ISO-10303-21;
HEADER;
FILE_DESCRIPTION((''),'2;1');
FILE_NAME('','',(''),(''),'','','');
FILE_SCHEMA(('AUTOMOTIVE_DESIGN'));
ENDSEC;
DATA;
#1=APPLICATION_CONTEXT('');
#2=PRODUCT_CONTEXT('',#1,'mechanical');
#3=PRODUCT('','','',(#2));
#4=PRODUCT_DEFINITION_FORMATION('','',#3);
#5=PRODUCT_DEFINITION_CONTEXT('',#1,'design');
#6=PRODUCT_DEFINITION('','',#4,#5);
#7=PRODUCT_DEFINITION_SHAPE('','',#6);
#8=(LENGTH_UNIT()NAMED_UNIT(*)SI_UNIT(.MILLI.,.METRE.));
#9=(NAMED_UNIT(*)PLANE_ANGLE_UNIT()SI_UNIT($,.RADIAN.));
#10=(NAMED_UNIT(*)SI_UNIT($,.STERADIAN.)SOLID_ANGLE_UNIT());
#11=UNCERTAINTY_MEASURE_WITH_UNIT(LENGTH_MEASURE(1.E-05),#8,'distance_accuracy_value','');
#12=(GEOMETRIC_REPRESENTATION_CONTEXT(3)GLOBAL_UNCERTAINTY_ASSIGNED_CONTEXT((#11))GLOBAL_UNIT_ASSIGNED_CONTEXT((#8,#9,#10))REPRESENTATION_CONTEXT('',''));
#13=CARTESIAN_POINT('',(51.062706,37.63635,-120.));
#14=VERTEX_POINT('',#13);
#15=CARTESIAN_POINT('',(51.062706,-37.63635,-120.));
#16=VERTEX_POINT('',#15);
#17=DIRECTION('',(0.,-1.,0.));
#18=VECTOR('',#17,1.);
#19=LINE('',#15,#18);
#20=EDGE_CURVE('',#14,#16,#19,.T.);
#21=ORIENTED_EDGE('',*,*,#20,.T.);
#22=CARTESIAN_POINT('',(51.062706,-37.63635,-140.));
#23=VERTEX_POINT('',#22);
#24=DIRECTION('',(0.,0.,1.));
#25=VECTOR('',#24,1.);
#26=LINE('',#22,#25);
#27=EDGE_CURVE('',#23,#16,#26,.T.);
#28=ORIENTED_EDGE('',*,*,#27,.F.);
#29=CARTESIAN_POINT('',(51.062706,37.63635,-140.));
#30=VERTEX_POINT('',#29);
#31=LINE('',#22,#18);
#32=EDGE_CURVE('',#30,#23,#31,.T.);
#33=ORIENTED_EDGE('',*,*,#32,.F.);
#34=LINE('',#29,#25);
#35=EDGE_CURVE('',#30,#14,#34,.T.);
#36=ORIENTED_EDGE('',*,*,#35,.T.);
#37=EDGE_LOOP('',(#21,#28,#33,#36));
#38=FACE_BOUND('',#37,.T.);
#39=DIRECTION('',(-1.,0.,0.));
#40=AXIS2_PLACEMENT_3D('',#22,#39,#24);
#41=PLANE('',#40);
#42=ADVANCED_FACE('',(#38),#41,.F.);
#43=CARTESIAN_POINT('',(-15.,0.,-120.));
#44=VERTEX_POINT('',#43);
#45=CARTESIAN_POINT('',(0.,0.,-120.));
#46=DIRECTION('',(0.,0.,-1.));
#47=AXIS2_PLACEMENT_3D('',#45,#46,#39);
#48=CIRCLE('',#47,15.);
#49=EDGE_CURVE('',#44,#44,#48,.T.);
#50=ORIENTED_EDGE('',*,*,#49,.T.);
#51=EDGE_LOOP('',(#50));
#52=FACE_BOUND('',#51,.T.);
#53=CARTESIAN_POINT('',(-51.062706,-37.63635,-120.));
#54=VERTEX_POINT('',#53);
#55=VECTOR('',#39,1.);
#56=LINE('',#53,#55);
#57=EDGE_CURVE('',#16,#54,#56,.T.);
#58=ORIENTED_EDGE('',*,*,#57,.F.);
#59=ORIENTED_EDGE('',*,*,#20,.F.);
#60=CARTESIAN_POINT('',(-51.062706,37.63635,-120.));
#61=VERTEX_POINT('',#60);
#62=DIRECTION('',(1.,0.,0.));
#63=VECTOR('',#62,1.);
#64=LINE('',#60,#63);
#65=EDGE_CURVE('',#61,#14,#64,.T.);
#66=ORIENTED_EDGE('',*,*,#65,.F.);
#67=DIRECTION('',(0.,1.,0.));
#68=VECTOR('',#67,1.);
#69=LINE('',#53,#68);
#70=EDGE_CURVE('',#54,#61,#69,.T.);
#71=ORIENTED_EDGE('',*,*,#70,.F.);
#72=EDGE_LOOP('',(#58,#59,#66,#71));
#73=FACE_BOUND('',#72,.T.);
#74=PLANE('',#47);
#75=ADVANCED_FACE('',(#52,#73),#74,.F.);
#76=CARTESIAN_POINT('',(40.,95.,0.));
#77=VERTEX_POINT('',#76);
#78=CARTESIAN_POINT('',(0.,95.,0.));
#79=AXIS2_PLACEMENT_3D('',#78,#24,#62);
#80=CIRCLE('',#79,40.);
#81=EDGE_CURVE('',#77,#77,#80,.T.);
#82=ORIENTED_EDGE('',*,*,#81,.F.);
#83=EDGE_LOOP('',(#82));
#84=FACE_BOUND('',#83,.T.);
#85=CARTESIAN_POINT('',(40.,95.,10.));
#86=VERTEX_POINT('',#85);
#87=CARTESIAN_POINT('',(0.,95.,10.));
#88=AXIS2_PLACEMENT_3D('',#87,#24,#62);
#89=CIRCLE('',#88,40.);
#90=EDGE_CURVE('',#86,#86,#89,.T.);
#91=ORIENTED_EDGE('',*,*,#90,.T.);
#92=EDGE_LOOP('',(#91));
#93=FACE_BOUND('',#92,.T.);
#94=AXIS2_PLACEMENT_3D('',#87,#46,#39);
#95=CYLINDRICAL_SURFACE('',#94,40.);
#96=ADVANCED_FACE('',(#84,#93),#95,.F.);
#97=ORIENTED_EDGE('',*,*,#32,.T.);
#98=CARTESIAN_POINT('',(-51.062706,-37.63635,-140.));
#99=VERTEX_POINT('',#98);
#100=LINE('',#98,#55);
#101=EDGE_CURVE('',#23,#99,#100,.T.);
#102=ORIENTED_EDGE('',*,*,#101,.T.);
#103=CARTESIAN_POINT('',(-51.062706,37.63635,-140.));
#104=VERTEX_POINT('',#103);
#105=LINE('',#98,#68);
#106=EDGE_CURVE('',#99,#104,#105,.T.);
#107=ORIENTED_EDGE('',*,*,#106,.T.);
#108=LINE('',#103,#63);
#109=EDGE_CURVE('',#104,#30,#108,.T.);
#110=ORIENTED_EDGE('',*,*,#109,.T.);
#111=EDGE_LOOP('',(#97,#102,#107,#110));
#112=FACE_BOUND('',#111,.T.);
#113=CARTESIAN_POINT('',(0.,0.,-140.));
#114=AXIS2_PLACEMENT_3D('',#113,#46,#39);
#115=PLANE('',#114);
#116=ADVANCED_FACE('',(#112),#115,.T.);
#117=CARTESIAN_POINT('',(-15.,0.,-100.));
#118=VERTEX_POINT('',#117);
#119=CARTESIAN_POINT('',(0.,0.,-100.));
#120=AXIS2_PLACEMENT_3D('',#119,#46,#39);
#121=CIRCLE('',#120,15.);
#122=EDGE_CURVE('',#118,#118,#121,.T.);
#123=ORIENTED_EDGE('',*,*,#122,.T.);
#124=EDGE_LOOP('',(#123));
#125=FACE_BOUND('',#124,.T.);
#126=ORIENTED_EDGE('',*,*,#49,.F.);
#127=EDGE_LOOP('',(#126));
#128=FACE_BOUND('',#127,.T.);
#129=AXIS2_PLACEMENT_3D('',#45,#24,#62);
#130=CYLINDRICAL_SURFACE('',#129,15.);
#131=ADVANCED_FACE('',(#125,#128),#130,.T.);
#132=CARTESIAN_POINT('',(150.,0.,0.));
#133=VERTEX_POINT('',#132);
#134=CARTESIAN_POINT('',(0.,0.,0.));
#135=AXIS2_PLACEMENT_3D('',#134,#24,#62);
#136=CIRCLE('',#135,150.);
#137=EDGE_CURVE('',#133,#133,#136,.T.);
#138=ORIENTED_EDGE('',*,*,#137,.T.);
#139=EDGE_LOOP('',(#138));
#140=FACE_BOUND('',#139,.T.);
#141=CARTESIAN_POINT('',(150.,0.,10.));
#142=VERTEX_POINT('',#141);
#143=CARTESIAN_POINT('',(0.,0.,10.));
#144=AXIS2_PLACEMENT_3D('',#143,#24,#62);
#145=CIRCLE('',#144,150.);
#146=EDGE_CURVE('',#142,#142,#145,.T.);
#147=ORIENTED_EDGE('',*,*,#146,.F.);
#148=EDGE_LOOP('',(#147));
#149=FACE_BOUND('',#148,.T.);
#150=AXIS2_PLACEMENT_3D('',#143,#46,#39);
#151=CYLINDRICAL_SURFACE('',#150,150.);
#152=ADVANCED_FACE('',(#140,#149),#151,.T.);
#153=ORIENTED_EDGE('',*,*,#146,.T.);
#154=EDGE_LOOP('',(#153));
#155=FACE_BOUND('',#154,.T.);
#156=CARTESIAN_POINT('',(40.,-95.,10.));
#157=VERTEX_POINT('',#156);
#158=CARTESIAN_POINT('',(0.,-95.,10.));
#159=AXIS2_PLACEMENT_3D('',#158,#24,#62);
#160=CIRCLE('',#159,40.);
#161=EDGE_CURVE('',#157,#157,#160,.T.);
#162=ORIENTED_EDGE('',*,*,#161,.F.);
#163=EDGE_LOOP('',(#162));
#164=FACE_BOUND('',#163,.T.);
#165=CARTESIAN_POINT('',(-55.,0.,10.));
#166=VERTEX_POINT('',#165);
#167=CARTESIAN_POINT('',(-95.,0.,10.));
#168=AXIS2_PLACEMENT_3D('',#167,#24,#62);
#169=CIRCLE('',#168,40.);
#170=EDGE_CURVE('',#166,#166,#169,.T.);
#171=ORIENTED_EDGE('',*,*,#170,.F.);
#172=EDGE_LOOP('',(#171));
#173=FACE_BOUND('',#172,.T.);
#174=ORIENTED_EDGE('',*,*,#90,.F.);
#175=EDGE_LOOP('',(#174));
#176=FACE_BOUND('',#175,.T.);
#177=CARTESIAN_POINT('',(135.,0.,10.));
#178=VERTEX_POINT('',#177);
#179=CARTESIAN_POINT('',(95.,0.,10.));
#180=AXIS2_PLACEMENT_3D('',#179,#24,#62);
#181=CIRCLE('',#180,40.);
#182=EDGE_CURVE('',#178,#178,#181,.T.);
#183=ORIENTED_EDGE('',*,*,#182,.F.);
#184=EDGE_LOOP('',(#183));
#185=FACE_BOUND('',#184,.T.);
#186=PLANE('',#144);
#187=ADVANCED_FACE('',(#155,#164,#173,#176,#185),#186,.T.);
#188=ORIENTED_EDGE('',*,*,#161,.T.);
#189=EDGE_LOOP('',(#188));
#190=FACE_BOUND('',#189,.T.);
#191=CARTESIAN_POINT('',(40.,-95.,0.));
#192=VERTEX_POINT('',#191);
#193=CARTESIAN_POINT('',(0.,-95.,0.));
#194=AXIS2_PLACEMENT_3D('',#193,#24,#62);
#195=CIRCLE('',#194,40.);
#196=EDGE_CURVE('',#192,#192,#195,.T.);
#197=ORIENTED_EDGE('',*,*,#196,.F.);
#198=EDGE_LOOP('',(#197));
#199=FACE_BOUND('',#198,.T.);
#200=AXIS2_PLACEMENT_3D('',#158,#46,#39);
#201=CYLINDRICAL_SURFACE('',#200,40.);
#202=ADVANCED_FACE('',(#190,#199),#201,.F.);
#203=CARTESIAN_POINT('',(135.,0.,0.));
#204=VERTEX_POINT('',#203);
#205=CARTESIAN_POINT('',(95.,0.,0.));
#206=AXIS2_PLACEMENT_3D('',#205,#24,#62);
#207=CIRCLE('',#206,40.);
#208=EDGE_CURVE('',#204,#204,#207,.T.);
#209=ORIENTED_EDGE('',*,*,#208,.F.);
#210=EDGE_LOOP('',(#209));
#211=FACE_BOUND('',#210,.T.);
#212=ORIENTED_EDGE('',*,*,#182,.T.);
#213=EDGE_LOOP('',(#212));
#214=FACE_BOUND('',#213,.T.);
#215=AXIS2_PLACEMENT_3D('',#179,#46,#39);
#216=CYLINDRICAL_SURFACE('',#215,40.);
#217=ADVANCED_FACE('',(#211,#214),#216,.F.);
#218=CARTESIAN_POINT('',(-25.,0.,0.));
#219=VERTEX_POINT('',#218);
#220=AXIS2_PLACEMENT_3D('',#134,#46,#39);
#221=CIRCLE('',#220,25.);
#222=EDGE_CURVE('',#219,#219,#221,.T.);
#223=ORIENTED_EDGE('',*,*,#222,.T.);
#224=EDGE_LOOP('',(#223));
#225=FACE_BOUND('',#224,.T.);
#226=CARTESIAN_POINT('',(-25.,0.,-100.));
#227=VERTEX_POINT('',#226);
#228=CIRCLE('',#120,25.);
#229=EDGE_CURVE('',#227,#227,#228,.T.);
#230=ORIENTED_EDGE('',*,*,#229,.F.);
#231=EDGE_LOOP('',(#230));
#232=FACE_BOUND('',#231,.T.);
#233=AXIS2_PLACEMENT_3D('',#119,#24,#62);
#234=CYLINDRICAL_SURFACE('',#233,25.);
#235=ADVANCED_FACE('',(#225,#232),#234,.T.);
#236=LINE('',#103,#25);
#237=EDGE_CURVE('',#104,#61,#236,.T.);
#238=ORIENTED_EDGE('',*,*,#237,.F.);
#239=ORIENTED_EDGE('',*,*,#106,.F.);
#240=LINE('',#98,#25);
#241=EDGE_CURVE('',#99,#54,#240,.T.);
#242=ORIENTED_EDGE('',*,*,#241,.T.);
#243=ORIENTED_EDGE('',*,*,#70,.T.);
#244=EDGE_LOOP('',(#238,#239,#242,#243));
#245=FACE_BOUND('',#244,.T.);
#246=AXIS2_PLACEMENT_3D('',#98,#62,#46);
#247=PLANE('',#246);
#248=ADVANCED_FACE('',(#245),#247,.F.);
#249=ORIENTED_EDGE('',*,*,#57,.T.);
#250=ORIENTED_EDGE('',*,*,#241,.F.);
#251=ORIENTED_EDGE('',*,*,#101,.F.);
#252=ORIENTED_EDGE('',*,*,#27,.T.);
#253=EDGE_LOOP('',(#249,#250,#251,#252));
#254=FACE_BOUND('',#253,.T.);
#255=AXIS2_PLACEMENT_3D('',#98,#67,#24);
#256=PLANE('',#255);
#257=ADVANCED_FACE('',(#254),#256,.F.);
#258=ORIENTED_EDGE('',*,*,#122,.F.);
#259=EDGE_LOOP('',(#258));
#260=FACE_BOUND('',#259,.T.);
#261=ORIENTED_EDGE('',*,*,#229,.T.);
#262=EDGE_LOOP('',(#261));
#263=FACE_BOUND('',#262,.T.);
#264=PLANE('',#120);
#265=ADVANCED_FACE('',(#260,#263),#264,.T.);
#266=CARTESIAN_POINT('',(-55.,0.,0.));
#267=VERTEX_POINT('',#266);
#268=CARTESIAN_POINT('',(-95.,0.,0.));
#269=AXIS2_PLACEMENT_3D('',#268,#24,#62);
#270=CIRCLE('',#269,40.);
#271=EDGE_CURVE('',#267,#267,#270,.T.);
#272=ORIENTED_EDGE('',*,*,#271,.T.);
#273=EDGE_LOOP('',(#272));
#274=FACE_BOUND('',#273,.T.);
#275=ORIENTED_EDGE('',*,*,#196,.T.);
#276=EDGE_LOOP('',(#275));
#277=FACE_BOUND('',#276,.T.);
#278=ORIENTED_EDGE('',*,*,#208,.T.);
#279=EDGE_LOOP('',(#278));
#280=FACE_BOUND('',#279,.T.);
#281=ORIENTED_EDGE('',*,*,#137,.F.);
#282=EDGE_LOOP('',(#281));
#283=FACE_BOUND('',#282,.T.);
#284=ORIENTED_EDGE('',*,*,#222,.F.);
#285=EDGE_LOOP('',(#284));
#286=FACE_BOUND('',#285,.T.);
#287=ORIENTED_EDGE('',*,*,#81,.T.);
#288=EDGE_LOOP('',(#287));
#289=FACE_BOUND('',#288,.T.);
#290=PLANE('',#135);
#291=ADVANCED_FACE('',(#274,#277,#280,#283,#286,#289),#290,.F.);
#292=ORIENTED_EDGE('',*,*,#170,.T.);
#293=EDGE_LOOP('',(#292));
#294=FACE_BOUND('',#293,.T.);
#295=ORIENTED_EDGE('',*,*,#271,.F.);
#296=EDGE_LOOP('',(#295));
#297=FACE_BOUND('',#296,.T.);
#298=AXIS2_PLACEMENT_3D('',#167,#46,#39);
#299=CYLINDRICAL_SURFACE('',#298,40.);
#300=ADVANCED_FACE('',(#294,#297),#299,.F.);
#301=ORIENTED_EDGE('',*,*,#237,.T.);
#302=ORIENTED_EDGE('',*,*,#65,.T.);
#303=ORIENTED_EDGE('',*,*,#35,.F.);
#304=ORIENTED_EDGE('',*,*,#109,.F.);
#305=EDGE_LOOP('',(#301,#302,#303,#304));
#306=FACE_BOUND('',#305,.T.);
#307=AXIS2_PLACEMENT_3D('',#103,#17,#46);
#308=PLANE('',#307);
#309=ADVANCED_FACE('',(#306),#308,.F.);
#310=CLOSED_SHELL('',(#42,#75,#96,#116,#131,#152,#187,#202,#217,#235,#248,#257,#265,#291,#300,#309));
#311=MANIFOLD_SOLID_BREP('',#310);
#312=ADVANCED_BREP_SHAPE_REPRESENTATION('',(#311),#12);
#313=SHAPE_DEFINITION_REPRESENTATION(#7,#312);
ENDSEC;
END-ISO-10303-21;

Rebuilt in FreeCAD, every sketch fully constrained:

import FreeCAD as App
import Part
import Sketcher
Q = App.Units.Quantity


def add_polygon(sketch, points):
    """Adds a closed chain of lines whose ends are joined by coincident constraints."""
    first, n = sketch.GeometryCount, len(points)
    for a, b in zip(points, points[1:] + points[:1]):
        sketch.addGeometry(Part.LineSegment(App.Vector(*a, 0), App.Vector(*b, 0)), False)
    for i in range(n):
        sketch.addConstraint(Sketcher.Constraint("Coincident", first + i, 2, first + (i + 1) % n, 1))

doc = App.newDocument("Part")
params = doc.addObject("Spreadsheet::Sheet", "Params")
for row, (alias, value) in enumerate([
    ("sketch1_diameter", "300 mm"),
    ("sketch1_diameter2", "80 mm"),
    ("pad1_length", "10 mm"),
    ("sketch2_diameter", "50 mm"),
    ("pad2_length", "100 mm"),
    ("sketch3_diameter", "30 mm"),
    ("pad3_length", "20 mm"),
    ("pad4_length", "20 mm"),
], start=1):
    params.set(f"A{row}", alias)
    params.set(f"B{row}", "=" + value)
    params.setAlias(f"B{row}", alias)

body = doc.addObject("PartDesign::Body", "Body")

# Sketch on XY plane
sketch1 = body.newObject("Sketcher::SketchObject", "Sketch")
sketch1.AttachmentSupport = (doc.getObject("XY_Plane"), [""])
sketch1.MapMode = "FlatFace"
sketch1.addGeometry([
    Part.Circle(App.Vector(0, 0, 0), App.Vector(0, 0, 1), 150),  # 0
    Part.Circle(App.Vector(0, -95, 0), App.Vector(0, 0, 1), 40),  # 1
    Part.Circle(App.Vector(-95, 0, 0), App.Vector(0, 0, 1), 40),  # 2
    Part.Circle(App.Vector(95, 0, 0), App.Vector(0, 0, 1), 40),  # 3
    Part.Circle(App.Vector(0, 95, 0), App.Vector(0, 0, 1), 40),  # 4
], False)
sketch1.addConstraint([
    Sketcher.Constraint("Coincident", 0, 3, -1, 1),
    Sketcher.Constraint("Equal", 1, 2),
    Sketcher.Constraint("Equal", 2, 3),
    Sketcher.Constraint("Equal", 3, 4),
    Sketcher.Constraint("Symmetric", 2, 3, 3, 3, -1, 1),
    Sketcher.Constraint("Symmetric", 1, 3, 4, 3, -1, 1),
    Sketcher.Constraint("PointOnObject", 1, 3, -2),
    Sketcher.Constraint("PointOnObject", 2, 3, -1),
    Sketcher.Constraint("Diameter", 0, Q("300 mm")),
    Sketcher.Constraint("Diameter", 1, Q("80 mm")),
    Sketcher.Constraint("DistanceY", 1, 3, -1, 1, Q("95 mm")),
    Sketcher.Constraint("DistanceX", 2, 3, -1, 1, Q("95 mm")),
])
sketch1.setExpression("Constraints[8]", "Params.sketch1_diameter")
sketch1.setExpression("Constraints[9]", "Params.sketch1_diameter2")
pad1 = body.newObject("PartDesign::Pad", "Pad")
pad1.Profile = sketch1
pad1.setExpression("Length", "Params.pad1_length")

# Sketch on XY plane
sketch2 = body.newObject("Sketcher::SketchObject", "Sketch001")
sketch2.AttachmentSupport = (doc.getObject("XY_Plane"), [""])
sketch2.MapMode = "FlatFace"
sketch2.addGeometry(Part.Circle(App.Vector(0, 0, 0), App.Vector(0, 0, 1), 25), False)
sketch2.addConstraint([
    Sketcher.Constraint("Coincident", 0, 3, -1, 1),
    Sketcher.Constraint("Diameter", 0, Q("50 mm")),
])
sketch2.setExpression("Constraints[1]", "Params.sketch2_diameter")
pad2 = body.newObject("PartDesign::Pad", "Pad001")
pad2.Profile = sketch2
pad2.setExpression("Length", "Params.pad2_length")
pad2.Reversed = True

# Sketch on XY plane
sketch3 = body.newObject("Sketcher::SketchObject", "Sketch002")
sketch3.AttachmentSupport = (doc.getObject("XY_Plane"), [""])
sketch3.MapMode = "FlatFace"
sketch3.AttachmentOffset = App.Placement(App.Vector(0, 0, -100), App.Rotation())
sketch3.addGeometry(Part.Circle(App.Vector(0, 0, 0), App.Vector(0, 0, 1), 15), False)
sketch3.addConstraint([
    Sketcher.Constraint("Coincident", 0, 3, -1, 1),
    Sketcher.Constraint("Diameter", 0, Q("30 mm")),
])
sketch3.setExpression("Constraints[1]", "Params.sketch3_diameter")
pad3 = body.newObject("PartDesign::Pad", "Pad002")
pad3.Profile = sketch3
pad3.setExpression("Length", "Params.pad3_length")
pad3.Reversed = True

# Sketch on XY plane
sketch4 = body.newObject("Sketcher::SketchObject", "Sketch003")
sketch4.AttachmentSupport = (doc.getObject("XY_Plane"), [""])
sketch4.MapMode = "FlatFace"
sketch4.AttachmentOffset = App.Placement(App.Vector(0, 0, -120), App.Rotation())
add_polygon(sketch4, [(51, 38), (51, -38), (-51, -38), (-51, 38)])  # lines 0-3
sketch4.addConstraint([
    Sketcher.Constraint("Vertical", 0),
    Sketcher.Constraint("Horizontal", 1),
    Sketcher.Constraint("Vertical", 2),
    Sketcher.Constraint("Horizontal", 3),
    Sketcher.Constraint("Symmetric", 0, 2, 2, 2, -1, 1),
    Sketcher.Constraint("DistanceY", 0, 2, 0, 1, Q("75.272699 mm")),
    Sketcher.Constraint("DistanceX", 1, 2, 1, 1, Q("102.125412 mm")),
])
pad4 = body.newObject("PartDesign::Pad", "Pad003")
pad4.Profile = sketch4
pad4.setExpression("Length", "Params.pad4_length")
pad4.Reversed = True

doc.recompute()
